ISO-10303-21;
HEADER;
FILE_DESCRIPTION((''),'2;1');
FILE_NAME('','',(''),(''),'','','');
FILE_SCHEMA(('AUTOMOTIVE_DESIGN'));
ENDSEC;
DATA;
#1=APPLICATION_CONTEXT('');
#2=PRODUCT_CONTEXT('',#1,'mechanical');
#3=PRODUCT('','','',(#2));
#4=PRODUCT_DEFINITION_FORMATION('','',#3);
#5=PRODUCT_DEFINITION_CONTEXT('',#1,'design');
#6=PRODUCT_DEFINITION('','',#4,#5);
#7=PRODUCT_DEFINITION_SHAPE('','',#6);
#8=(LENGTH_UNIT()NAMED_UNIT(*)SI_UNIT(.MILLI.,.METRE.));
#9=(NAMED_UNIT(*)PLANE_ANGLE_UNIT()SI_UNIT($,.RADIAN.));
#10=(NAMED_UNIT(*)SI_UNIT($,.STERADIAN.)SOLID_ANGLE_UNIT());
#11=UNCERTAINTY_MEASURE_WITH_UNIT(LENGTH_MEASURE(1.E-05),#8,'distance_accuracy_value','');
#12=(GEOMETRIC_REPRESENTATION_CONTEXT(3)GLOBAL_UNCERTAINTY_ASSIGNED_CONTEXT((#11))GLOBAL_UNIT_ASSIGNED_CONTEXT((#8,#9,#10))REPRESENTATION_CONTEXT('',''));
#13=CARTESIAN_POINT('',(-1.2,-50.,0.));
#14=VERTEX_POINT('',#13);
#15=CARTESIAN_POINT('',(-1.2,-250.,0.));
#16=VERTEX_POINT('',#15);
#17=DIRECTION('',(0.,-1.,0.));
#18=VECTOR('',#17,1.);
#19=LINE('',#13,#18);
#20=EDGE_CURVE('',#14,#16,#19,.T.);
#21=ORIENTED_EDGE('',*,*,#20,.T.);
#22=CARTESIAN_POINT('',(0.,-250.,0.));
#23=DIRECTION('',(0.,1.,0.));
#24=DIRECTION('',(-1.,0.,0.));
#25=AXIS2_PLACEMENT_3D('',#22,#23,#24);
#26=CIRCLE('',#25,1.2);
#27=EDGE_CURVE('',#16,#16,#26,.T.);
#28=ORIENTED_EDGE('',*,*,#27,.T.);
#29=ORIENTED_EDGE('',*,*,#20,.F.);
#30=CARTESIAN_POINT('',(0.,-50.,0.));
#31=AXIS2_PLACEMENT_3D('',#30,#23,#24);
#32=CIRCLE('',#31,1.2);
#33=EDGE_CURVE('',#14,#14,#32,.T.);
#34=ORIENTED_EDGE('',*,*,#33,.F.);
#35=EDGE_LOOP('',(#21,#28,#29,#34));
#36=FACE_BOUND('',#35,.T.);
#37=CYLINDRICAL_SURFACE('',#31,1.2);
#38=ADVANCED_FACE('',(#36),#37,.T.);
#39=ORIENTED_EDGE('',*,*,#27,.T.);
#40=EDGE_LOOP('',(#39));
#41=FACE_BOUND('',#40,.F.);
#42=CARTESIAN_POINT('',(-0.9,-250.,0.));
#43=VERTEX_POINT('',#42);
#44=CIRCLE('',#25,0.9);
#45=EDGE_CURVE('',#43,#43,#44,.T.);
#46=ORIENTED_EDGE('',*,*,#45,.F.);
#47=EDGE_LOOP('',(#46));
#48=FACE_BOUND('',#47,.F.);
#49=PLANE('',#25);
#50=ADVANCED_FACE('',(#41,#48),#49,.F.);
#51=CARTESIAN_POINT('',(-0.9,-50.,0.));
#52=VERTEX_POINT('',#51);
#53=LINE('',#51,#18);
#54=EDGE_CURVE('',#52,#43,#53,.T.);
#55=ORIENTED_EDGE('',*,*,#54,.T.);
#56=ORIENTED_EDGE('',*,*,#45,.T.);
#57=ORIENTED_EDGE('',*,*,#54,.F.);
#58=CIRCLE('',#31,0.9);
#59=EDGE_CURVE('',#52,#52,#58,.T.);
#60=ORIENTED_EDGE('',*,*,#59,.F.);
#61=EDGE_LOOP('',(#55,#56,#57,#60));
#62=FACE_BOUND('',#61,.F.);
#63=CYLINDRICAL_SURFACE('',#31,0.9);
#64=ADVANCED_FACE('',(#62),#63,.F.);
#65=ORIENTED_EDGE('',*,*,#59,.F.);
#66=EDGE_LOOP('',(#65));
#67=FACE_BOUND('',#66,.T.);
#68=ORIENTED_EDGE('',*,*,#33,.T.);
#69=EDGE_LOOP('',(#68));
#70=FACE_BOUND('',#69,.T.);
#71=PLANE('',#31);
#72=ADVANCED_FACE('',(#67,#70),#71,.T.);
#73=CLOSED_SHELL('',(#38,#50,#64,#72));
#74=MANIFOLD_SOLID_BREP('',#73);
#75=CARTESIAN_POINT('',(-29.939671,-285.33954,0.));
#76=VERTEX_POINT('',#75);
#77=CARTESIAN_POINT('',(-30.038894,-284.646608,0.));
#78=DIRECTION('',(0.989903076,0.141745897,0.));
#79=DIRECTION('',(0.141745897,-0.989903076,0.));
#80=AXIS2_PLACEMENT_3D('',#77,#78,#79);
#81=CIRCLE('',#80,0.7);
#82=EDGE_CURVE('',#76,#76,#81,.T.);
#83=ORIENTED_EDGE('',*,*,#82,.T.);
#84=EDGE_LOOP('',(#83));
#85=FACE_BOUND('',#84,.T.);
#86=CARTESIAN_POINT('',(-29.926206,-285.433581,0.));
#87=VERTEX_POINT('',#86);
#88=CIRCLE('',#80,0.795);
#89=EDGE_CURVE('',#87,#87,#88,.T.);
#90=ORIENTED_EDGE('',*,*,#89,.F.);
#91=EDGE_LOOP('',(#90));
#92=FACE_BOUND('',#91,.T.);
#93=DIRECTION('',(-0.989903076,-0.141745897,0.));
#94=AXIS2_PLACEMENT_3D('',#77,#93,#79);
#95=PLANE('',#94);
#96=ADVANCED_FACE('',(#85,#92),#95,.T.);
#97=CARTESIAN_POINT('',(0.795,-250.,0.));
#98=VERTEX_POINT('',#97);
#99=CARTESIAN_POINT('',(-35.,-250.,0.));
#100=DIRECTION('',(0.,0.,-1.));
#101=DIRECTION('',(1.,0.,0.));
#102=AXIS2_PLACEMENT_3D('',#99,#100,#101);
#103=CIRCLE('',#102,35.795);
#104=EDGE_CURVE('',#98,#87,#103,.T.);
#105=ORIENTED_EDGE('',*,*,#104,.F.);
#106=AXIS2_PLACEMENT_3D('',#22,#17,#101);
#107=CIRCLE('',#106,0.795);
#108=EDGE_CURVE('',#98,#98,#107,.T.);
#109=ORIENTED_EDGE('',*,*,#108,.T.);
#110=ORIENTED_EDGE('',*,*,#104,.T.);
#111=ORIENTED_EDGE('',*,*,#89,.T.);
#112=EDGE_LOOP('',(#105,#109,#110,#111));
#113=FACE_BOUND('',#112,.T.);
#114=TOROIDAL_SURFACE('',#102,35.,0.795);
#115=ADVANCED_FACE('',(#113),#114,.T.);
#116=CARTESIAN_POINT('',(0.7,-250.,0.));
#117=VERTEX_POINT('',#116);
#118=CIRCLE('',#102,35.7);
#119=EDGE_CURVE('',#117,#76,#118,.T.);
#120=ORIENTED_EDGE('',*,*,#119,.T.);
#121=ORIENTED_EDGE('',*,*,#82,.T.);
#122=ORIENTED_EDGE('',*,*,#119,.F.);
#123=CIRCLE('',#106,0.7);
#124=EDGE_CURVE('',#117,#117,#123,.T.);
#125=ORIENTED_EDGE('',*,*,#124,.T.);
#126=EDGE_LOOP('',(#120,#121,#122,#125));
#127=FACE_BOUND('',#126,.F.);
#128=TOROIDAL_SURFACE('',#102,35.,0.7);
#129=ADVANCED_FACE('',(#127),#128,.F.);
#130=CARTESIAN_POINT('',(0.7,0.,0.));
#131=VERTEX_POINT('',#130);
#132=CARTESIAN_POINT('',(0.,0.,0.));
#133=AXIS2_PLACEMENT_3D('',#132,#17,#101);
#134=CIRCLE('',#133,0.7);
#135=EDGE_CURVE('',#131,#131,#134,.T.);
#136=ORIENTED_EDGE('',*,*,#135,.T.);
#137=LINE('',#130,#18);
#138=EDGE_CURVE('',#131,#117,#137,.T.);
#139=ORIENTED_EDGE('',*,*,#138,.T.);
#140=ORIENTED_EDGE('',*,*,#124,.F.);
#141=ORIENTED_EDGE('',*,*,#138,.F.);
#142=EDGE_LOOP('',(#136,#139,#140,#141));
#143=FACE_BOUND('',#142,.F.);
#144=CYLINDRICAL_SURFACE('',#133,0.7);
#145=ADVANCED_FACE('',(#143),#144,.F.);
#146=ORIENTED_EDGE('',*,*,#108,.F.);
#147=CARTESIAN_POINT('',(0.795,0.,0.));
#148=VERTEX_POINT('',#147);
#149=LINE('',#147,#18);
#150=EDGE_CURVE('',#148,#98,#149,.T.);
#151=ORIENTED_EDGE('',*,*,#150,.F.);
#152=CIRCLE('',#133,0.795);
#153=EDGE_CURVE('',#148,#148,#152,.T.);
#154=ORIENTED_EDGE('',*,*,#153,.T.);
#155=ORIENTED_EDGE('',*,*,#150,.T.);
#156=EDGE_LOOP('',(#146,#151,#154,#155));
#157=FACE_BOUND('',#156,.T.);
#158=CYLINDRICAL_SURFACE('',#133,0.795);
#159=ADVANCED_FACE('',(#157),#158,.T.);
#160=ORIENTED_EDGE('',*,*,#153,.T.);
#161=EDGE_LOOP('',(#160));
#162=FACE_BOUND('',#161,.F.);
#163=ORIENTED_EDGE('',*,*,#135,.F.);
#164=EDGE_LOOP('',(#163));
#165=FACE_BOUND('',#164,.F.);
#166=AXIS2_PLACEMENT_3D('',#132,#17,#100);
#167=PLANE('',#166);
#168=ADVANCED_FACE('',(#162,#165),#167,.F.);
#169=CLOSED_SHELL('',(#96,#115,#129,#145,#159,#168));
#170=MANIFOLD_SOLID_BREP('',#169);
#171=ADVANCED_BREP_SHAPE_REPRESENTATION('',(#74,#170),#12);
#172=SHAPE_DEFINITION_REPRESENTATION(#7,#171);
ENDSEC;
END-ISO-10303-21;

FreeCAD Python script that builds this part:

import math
import FreeCAD as App
import Part
import Sketcher

V = App.Vector

doc = App.newDocument("Part")
body = doc.addObject("PartDesign::Body", "Body")

# Sketch on XZ plane
sketch1 = doc.addObject("Sketcher::SketchObject", "Sketch")
body.addObject(sketch1)
sketch1.AttachmentSupport = (doc.XZ_Plane, [""])
sketch1.MapMode = "FlatFace"
sketch1.addGeometry(Part.Circle(V(0, 0, 0), V(0, 0, 1), 0.8), False)
sketch1.addGeometry(Part.Circle(V(0, 0, 0), V(0, 0, 1), 0.7), False)
sketch1.addConstraint(Sketcher.Constraint("Coincident", 0, 3, -1, 1))
sketch1.addConstraint(Sketcher.Constraint("Coincident", 1, 3, -1, 1))
sketch1.addConstraint(Sketcher.Constraint("Diameter", 1, 1.4))
sketch1.addConstraint(Sketcher.Constraint("Diameter", 0, 1.59))

# Sketch on XY plane
sketch2 = doc.addObject("Sketcher::SketchObject", "Sketch001")
body.addObject(sketch2)
sketch2.AttachmentSupport = (doc.XY_Plane, [""])
sketch2.MapMode = "FlatFace"
sketch2.addGeometry(Part.LineSegment(V(0, 0, 0), V(0, -250, 0)), False)
sketch2.addGeometry(Part.ArcOfCircle(Part.Circle(V(-35, -250, 0), V(0, 0, 1), 35), math.radians(-82), math.radians(0)), False)
sketch2.addConstraint(Sketcher.Constraint("Tangent", 0, 2, 1, 2))
sketch2.addConstraint(Sketcher.Constraint("Vertical", 0))
sketch2.addConstraint(Sketcher.Constraint("Coincident", 0, 1, -1, 1))
sketch2.addConstraint(Sketcher.Constraint("Radius", 1, 35.0))
sketch2.addConstraint(Sketcher.Constraint("DistanceY", 0, 2, 0, 1, 250.0))
sketch2.addConstraint(Sketcher.Constraint("DistanceX", 1, 1, -1, 1, 30.038894))
doc.recompute()

additivepipe = doc.addObject("PartDesign::AdditivePipe", "AdditivePipe")
body.addObject(additivepipe)
additivepipe.Profile = sketch1
additivepipe.Spine = (sketch2, ["Edge1", "Edge2"])
body2 = doc.addObject("PartDesign::Body", "Body001")

# Sketch on XZ plane
sketch3 = doc.addObject("Sketcher::SketchObject", "Sketch002")
body2.addObject(sketch3)
sketch3.AttachmentSupport = (doc.getObject("XZ_Plane001"), [""])
sketch3.MapMode = "FlatFace"
sketch3.AttachmentOffset = App.Placement(V(0, 0, 50), App.Rotation())
sketch3.addGeometry(Part.Circle(V(0, 0, 0), V(0, 0, 1), 1.2), False)
sketch3.addGeometry(Part.Circle(V(0, 0, 0), V(0, 0, 1), 0.9), False)
sketch3.addConstraint(Sketcher.Constraint("Coincident", 0, 3, -1, 1))
sketch3.addConstraint(Sketcher.Constraint("Coincident", 1, 3, -1, 1))
sketch3.addConstraint(Sketcher.Constraint("Diameter", 0, 2.4))
sketch3.addConstraint(Sketcher.Constraint("Diameter", 1, 1.8))
pad1 = doc.addObject("PartDesign::Pad", "Pad")
body2.addObject(pad1)
pad1.Profile = sketch3
pad1.Length = 200

doc.recompute()
